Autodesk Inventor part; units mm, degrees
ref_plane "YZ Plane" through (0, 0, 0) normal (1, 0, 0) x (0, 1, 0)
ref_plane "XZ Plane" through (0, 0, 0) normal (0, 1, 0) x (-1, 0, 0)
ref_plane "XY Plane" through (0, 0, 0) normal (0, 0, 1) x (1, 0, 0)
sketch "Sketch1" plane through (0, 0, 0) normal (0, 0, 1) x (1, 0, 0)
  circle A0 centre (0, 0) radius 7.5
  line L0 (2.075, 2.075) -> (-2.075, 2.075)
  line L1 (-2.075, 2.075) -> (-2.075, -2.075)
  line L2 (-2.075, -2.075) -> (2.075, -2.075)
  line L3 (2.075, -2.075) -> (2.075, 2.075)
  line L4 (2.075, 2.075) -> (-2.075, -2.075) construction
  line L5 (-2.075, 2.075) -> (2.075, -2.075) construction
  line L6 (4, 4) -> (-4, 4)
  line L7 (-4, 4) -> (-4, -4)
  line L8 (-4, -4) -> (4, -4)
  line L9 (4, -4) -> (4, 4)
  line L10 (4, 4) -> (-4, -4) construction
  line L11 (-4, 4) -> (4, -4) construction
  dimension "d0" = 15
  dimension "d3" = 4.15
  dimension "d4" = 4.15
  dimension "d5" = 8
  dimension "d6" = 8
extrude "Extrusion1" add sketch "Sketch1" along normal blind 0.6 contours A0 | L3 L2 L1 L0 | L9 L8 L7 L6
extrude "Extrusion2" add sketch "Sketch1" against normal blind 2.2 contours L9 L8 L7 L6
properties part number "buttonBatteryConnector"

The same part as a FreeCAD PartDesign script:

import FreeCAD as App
import Part
import Sketcher
Q = App.Units.Quantity


def add_polygon(sketch, points):
    """Adds a closed chain of lines whose ends are joined by coincident constraints."""
    first, n = sketch.GeometryCount, len(points)
    for a, b in zip(points, points[1:] + points[:1]):
        sketch.addGeometry(Part.LineSegment(App.Vector(*a, 0), App.Vector(*b, 0)), False)
    for i in range(n):
        sketch.addConstraint(Sketcher.Constraint("Coincident", first + i, 2, first + (i + 1) % n, 1))

doc = App.newDocument("Part")
body = doc.addObject("PartDesign::Body", "Body")

# Sketch on XY plane
sketch1 = doc.addObject("Sketcher::SketchObject", "Sketch")
body.addObject(sketch1)
sketch1.AttachmentSupport = (doc.XY_Plane, [""])
sketch1.MapMode = "FlatFace"
sketch1.addGeometry(Part.Circle(App.Vector(0, 0, 0), App.Vector(0, 0, 1), 8), False)
sketch1.addConstraint(Sketcher.Constraint("Coincident", 0, 3, -1, 1))
sketch1.addConstraint(Sketcher.Constraint("Diameter", 0, Q("15 mm")))
pad1 = doc.addObject("PartDesign::Pad", "Pad")
body.addObject(pad1)
pad1.Profile = sketch1
pad1.Length = 0.6

# Sketch on XY plane
sketch2 = doc.addObject("Sketcher::SketchObject", "Sketch001")
body.addObject(sketch2)
sketch2.AttachmentSupport = (doc.XY_Plane, [""])
sketch2.MapMode = "FlatFace"
add_polygon(sketch2, [(4, -4), (4, 4), (-4, 4), (-4, -4)])  # lines 0-3
add_polygon(sketch2, [(-2.1, 2.1), (2.1, 2.1), (2.1, -2.1), (-2.1, -2.1)])  # lines 4-7
sketch2.addConstraint(Sketcher.Constraint("Vertical", 0))
sketch2.addConstraint(Sketcher.Constraint("Horizontal", 1))
sketch2.addConstraint(Sketcher.Constraint("Vertical", 2))
sketch2.addConstraint(Sketcher.Constraint("Horizontal", 3))
sketch2.addConstraint(Sketcher.Constraint("Horizontal", 4))
sketch2.addConstraint(Sketcher.Constraint("Vertical", 5))
sketch2.addConstraint(Sketcher.Constraint("Horizontal", 6))
sketch2.addConstraint(Sketcher.Constraint("Vertical", 7))
sketch2.addConstraint(Sketcher.Constraint("Symmetric", 0, 2, 2, 2, -1, 1))
sketch2.addConstraint(Sketcher.Constraint("Symmetric", 4, 2, 6, 2, -1, 1))
sketch2.addConstraint(Sketcher.Constraint("Equal", 3, 0))
sketch2.addConstraint(Sketcher.Constraint("Equal", 6, 5))
sketch2.addConstraint(Sketcher.Constraint("DistanceX", 1, 2, 1, 1, Q("8 mm")))
sketch2.addConstraint(Sketcher.Constraint("DistanceX", 4, 1, 4, 2, Q("4.15 mm")))
pad2 = doc.addObject("PartDesign::Pad", "Pad001")
body.addObject(pad2)
pad2.Profile = sketch2
pad2.Length = 2.2
pad2.Reversed = True

doc.recompute()
